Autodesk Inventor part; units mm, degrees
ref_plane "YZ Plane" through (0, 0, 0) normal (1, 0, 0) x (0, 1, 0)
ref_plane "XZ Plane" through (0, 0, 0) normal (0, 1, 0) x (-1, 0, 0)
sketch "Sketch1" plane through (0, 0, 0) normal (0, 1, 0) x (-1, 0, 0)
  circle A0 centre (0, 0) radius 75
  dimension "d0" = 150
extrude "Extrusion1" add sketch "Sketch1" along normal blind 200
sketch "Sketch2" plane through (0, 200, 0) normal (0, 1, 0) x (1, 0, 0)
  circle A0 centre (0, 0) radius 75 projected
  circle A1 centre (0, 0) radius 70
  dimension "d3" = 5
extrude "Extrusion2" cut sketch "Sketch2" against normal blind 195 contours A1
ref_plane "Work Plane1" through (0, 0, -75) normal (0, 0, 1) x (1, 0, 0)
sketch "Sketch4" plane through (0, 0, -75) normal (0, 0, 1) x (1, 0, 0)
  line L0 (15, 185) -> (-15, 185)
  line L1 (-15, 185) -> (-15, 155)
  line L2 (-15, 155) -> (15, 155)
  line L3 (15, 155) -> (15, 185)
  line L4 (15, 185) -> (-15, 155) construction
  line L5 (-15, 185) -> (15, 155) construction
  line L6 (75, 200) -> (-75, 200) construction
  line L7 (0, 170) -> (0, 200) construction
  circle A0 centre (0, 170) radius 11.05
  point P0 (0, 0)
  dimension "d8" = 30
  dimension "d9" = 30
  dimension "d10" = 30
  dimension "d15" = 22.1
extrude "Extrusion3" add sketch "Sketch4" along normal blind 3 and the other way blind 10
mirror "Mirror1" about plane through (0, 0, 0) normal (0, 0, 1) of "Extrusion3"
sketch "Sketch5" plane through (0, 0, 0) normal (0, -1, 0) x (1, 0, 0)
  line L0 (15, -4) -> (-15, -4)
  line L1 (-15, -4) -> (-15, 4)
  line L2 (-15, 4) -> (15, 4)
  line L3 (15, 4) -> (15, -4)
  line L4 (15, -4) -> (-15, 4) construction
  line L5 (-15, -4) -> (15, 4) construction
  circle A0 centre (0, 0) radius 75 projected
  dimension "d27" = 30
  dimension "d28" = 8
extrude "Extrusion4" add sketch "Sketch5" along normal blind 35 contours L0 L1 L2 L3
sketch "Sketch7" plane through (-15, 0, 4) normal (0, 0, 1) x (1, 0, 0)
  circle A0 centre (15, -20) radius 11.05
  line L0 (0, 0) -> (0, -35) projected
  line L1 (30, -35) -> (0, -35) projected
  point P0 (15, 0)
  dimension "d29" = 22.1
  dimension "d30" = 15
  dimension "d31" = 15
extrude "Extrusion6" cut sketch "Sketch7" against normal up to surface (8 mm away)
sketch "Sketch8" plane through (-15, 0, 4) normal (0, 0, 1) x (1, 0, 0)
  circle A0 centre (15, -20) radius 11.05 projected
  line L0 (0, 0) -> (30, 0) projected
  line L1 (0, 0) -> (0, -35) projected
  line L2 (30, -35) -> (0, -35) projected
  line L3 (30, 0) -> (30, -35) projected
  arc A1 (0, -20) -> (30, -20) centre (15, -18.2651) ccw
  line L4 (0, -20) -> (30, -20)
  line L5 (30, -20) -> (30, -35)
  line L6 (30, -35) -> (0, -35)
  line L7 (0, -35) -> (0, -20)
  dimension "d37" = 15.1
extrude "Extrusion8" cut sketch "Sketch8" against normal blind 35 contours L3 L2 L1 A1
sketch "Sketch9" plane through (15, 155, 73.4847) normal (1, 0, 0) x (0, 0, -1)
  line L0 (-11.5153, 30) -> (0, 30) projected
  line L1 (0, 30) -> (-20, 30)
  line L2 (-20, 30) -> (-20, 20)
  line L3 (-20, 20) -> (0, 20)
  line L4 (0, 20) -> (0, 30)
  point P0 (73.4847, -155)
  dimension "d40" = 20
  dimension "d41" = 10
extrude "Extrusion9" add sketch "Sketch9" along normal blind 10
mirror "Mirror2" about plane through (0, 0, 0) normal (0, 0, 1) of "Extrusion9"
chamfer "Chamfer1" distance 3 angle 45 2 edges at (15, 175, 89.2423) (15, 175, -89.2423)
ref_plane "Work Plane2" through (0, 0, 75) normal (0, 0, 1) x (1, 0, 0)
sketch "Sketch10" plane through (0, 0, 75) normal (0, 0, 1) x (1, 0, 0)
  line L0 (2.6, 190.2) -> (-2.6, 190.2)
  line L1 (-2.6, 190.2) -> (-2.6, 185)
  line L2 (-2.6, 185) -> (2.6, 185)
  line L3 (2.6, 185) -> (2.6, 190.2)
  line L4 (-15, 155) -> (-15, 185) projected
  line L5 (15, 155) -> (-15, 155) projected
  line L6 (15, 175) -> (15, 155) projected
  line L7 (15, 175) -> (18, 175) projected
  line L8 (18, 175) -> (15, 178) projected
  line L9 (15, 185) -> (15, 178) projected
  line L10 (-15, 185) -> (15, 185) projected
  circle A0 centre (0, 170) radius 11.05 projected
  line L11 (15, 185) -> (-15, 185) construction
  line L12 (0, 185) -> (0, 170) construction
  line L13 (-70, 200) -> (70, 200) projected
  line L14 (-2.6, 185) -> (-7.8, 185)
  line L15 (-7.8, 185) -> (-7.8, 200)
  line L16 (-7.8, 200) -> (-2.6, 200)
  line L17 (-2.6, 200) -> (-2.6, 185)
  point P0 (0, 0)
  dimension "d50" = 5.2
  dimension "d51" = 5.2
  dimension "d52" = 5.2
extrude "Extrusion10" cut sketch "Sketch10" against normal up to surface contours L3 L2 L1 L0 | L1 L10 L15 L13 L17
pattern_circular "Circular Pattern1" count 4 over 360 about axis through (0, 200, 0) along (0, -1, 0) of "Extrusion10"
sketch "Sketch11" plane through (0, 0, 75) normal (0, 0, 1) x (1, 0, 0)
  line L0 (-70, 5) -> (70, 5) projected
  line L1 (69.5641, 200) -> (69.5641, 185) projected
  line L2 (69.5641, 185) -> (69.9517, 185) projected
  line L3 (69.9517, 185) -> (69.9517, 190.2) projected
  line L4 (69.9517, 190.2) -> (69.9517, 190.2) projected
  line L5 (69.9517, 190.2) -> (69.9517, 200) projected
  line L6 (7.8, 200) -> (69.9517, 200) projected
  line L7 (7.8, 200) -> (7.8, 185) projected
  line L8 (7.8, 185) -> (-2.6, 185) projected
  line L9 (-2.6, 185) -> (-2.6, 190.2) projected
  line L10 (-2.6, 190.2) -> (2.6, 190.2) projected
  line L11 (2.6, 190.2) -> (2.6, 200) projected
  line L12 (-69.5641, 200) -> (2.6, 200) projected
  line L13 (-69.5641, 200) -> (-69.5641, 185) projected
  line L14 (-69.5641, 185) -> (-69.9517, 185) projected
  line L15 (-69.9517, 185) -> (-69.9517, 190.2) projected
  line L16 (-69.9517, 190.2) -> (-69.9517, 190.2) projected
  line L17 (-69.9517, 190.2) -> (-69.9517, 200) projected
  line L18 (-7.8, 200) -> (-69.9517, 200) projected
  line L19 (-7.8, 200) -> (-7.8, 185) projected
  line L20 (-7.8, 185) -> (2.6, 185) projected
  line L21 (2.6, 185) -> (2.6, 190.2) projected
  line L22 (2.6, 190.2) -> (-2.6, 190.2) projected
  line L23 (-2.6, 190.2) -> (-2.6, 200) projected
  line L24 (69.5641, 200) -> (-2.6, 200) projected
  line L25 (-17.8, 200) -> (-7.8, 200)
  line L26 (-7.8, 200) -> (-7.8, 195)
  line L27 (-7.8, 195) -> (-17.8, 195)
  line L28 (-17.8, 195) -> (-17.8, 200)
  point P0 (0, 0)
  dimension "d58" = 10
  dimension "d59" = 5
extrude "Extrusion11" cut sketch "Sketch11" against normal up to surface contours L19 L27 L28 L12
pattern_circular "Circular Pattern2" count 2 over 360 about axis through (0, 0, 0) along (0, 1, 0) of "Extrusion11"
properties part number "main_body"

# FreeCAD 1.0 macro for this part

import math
import FreeCAD as App
import Part
import Sketcher
Q = App.Units.Quantity


def edges_at(feature, points):
    """Names of the edges that pass closest to the given points."""
    edges = feature.Shape.Edges
    near = lambda p: min(range(len(edges)), key=lambda i: edges[i].distToShape(Part.Vertex(*p))[0])
    return sorted({f"Edge{near(p) + 1}" for p in points})


def add_polygon(sketch, points):
    """Adds a closed chain of lines whose ends are joined by coincident constraints."""
    first, n = sketch.GeometryCount, len(points)
    for a, b in zip(points, points[1:] + points[:1]):
        sketch.addGeometry(Part.LineSegment(App.Vector(*a, 0), App.Vector(*b, 0)), False)
    for i in range(n):
        sketch.addConstraint(Sketcher.Constraint("Coincident", first + i, 2, first + (i + 1) % n, 1))

doc = App.newDocument("Part")
body = doc.addObject("PartDesign::Body", "Body")

# Sketch on XZ plane
sketch1 = body.newObject("Sketcher::SketchObject", "Sketch")
sketch1.AttachmentSupport = (doc.getObject("XZ_Plane"), [""])
sketch1.MapMode = "FlatFace"
sketch1.addGeometry(Part.Circle(App.Vector(0, 0, 0), App.Vector(0, 0, 1), 75), False)
sketch1.addConstraint([
    Sketcher.Constraint("Coincident", 0, 3, -1, 1),
    Sketcher.Constraint("Diameter", 0, Q("150 mm")),
])
pad1 = body.newObject("PartDesign::Pad", "Pad")
pad1.Profile = sketch1
pad1.Length = 200
pad1.Reversed = True

# Sketch on XZ plane
sketch2 = body.newObject("Sketcher::SketchObject", "Sketch001")
sketch2.AttachmentSupport = (doc.getObject("XZ_Plane"), [""])
sketch2.MapMode = "FlatFace"
sketch2.AttachmentOffset = App.Placement(App.Vector(0, 0, -200), App.Rotation())
sketch2.addGeometry(Part.Circle(App.Vector(0, 0, 0), App.Vector(0, 0, 1), 70), False)
sketch2.addConstraint([
    Sketcher.Constraint("Coincident", 0, 3, -1, 1),
    Sketcher.Constraint("Diameter", 0, Q("140 mm")),
])
pocket1 = body.newObject("PartDesign::Pocket", "Pocket")
pocket1.Profile = sketch2
pocket1.Length = 195
pocket1.Reversed = True

# Sketch on XY plane
sketch3 = body.newObject("Sketcher::SketchObject", "Sketch002")
sketch3.AttachmentSupport = (doc.getObject("XY_Plane"), [""])
sketch3.MapMode = "FlatFace"
sketch3.AttachmentOffset = App.Placement(App.Vector(0, 0, -75), App.Rotation())
add_polygon(sketch3, [(15, 155), (15, 185), (-15, 185), (-15, 155)])  # lines 0-3
sketch3.addGeometry(Part.Circle(App.Vector(0, 170, 0), App.Vector(0, 0, 1), 11), False)  # 4
sketch3.addConstraint([
    Sketcher.Constraint("Vertical", 0),
    Sketcher.Constraint("Horizontal", 1),
    Sketcher.Constraint("Vertical", 2),
    Sketcher.Constraint("Horizontal", 3),
    Sketcher.Constraint("PointOnObject", 4, 3, -2),
    Sketcher.Constraint("Equal", 3, 0),
    Sketcher.Constraint("Diameter", 4, Q("22.1 mm")),
    Sketcher.Constraint("DistanceX", 1, 2, 1, 1, Q("30 mm")),
    Sketcher.Constraint("DistanceY", -1, 1, 4, 3, Q("170 mm")),
    Sketcher.Constraint("DistanceX", -1, 1, 0, 2, Q("15 mm")),
    Sketcher.Constraint("DistanceY", -1, 1, 0, 2, Q("185 mm")),
])
pad2 = body.newObject("PartDesign::Pad", "Pad001")
pad2.Profile = sketch3
pad2.Type = "TwoLengths"
pad2.Length = 3
pad2.Length2 = 10
doc.recompute()

mirrored = body.newObject("PartDesign::Mirrored", "Mirrored")
mirrored.Originals = [pad2]
mirrored.MirrorPlane = (doc.getObject("XY_Plane"), [""])
body.Tip = mirrored

# Sketch on XZ plane
sketch4 = body.newObject("Sketcher::SketchObject", "Sketch003")
sketch4.AttachmentSupport = (doc.getObject("XZ_Plane"), [""])
sketch4.MapMode = "FlatFace"
add_polygon(sketch4, [(-15, -4), (15, -4), (15, 4), (-15, 4)])  # lines 0-3
sketch4.addConstraint([
    Sketcher.Constraint("Horizontal", 0),
    Sketcher.Constraint("Vertical", 1),
    Sketcher.Constraint("Horizontal", 2),
    Sketcher.Constraint("Vertical", 3),
    Sketcher.Constraint("Symmetric", 0, 2, 2, 2, -1, 1),
    Sketcher.Constraint("DistanceX", 0, 1, 0, 2, Q("30 mm")),
    Sketcher.Constraint("DistanceY", 1, 1, 1, 2, Q("8 mm")),
])
pad3 = body.newObject("PartDesign::Pad", "Pad002")
pad3.Profile = sketch4
pad3.Length = 35

# Sketch on XY plane
sketch5 = body.newObject("Sketcher::SketchObject", "Sketch004")
sketch5.AttachmentSupport = (doc.getObject("XY_Plane"), [""])
sketch5.MapMode = "FlatFace"
sketch5.AttachmentOffset = App.Placement(App.Vector(0, 0, 4), App.Rotation())
sketch5.addGeometry(Part.Circle(App.Vector(0, -20, 0), App.Vector(0, 0, 1), 11), False)
sketch5.addConstraint([
    Sketcher.Constraint("PointOnObject", 0, 3, -2),
    Sketcher.Constraint("Diameter", 0, Q("22.1 mm")),
    Sketcher.Constraint("DistanceY", 0, 3, -1, 1, Q("20 mm")),
])
pocket2 = body.newObject("PartDesign::Pocket", "Pocket001")
pocket2.Profile = sketch5
pocket2.Length = 8

# Sketch on XY plane
sketch6 = body.newObject("Sketcher::SketchObject", "Sketch005")
sketch6.AttachmentSupport = (doc.getObject("XY_Plane"), [""])
sketch6.MapMode = "FlatFace"
sketch6.AttachmentOffset = App.Placement(App.Vector(0, 0, 4), App.Rotation())
sketch6.addGeometry([
    Part.LineSegment(App.Vector(15, -35, 0), App.Vector(15, -20, 0)),
    Part.ArcOfCircle(Part.Circle(App.Vector(0, -18, 0), App.Vector(0, 0, 1), 15), math.radians(-173), math.radians(-7)),
    Part.LineSegment(App.Vector(-15, -20, 0), App.Vector(-15, -35, 0)),
    Part.LineSegment(App.Vector(-15, -35, 0), App.Vector(15, -35, 0)),
], False)
sketch6.addConstraint([
    Sketcher.Constraint("Coincident", 0, 2, 1, 2),
    Sketcher.Constraint("Coincident", 1, 1, 2, 1),
    Sketcher.Constraint("Coincident", 2, 2, 3, 1),
    Sketcher.Constraint("Coincident", 3, 2, 0, 1),
    Sketcher.Constraint("Vertical", 0),
    Sketcher.Constraint("Vertical", 2),
    Sketcher.Constraint("Horizontal", 3),
    Sketcher.Constraint("Symmetric", 0, 2, 1, 1, -2),
    Sketcher.Constraint("Radius", 1, Q("15.1 mm")),
    Sketcher.Constraint("DistanceX", 3, 1, 3, 2, Q("30 mm")),
    Sketcher.Constraint("DistanceY", 0, 1, 0, 2, Q("15 mm")),
    Sketcher.Constraint("DistanceY", 0, 2, -1, 1, Q("20 mm")),
])
pocket3 = body.newObject("PartDesign::Pocket", "Pocket002")
pocket3.Profile = sketch6
pocket3.Length = 35

# Sketch on YZ plane
sketch7 = body.newObject("Sketcher::SketchObject", "Sketch006")
sketch7.AttachmentSupport = (doc.getObject("YZ_Plane"), [""])
sketch7.MapMode = "FlatFace"
sketch7.AttachmentOffset = App.Placement(App.Vector(0, 0, 15), App.Rotation())
add_polygon(sketch7, [(185, 73), (185, 93), (175, 93), (175, 73)])  # lines 0-3
sketch7.addConstraint([
    Sketcher.Constraint("Vertical", 0),
    Sketcher.Constraint("Horizontal", 1),
    Sketcher.Constraint("Vertical", 2),
    Sketcher.Constraint("Horizontal", 3),
    Sketcher.Constraint("DistanceX", 1, 2, 1, 1, Q("10 mm")),
    Sketcher.Constraint("DistanceY", 0, 1, 0, 2, Q("20 mm")),
    Sketcher.Constraint("DistanceX", -1, 1, 0, 2, Q("185 mm")),
    Sketcher.Constraint("DistanceY", -1, 1, 0, 2, Q("93.4847 mm")),
])
pad4 = body.newObject("PartDesign::Pad", "Pad003")
pad4.Profile = sketch7
pad4.Length = 10
doc.recompute()

mirrored2 = body.newObject("PartDesign::Mirrored", "Mirrored001")
mirrored2.Originals = [pad4]
mirrored2.MirrorPlane = (doc.getObject("XY_Plane"), [""])
body.Tip = mirrored2
doc.recompute()

chamfer = body.newObject("PartDesign::Chamfer", "Chamfer")
chamfer.Base = (mirrored2, edges_at(mirrored2, [(15, 175, 89.242), (15, 175, -89.242)]))
chamfer.Size = 3

# Sketch on XY plane
sketch8 = body.newObject("Sketcher::SketchObject", "Sketch007")
sketch8.AttachmentSupport = (doc.getObject("XY_Plane"), [""])
sketch8.MapMode = "FlatFace"
sketch8.AttachmentOffset = App.Placement(App.Vector(0, 0, 75), App.Rotation())
add_polygon(sketch8, [(3, 185), (3, 190), (-3, 190), (-3, 200), (-8, 200), (-8, 185)])  # lines 0-5
sketch8.addConstraint([
    Sketcher.Constraint("Vertical", 0),
    Sketcher.Constraint("Horizontal", 1),
    Sketcher.Constraint("Vertical", 2),
    Sketcher.Constraint("Horizontal", 3),
    Sketcher.Constraint("Vertical", 4),
    Sketcher.Constraint("Horizontal", 5),
    Sketcher.Constraint("Equal", 1, 3),
    Sketcher.Constraint("Equal", 3, 0),
    Sketcher.Constraint("DistanceX", 1, 2, 1, 1, Q("5.2 mm")),
    Sketcher.Constraint("DistanceY", 4, 2, 4, 1, Q("15 mm")),
    Sketcher.Constraint("DistanceY", -1, 1, 2, 2, Q("200 mm")),
    Sketcher.Constraint("DistanceX", -1, 1, 0, 2, Q("2.6 mm")),
])
pocket4 = body.newObject("PartDesign::Pocket", "Pocket003")
pocket4.Profile = sketch8
pocket4.Length = 5.4359
doc.recompute()

polarpattern = body.newObject("PartDesign::PolarPattern", "PolarPattern")
polarpattern.Originals = [pocket4]
polarpattern.Axis = (doc.getObject("Y_Axis"), [""])
polarpattern.Angle = 360
polarpattern.Occurrences = 4
body.Tip = polarpattern

# Sketch on XY plane
sketch9 = body.newObject("Sketcher::SketchObject", "Sketch008")
sketch9.AttachmentSupport = (doc.getObject("XY_Plane"), [""])
sketch9.MapMode = "FlatFace"
sketch9.AttachmentOffset = App.Placement(App.Vector(0, 0, 75), App.Rotation())
add_polygon(sketch9, [(-8, 195), (-8, 200), (-18, 200), (-18, 195)])  # lines 0-3
sketch9.addConstraint([
    Sketcher.Constraint("Vertical", 0),
    Sketcher.Constraint("Horizontal", 1),
    Sketcher.Constraint("Vertical", 2),
    Sketcher.Constraint("Horizontal", 3),
    Sketcher.Constraint("DistanceX", 1, 2, 1, 1, Q("10 mm")),
    Sketcher.Constraint("DistanceY", 0, 1, 0, 2, Q("5 mm")),
    Sketcher.Constraint("DistanceY", -1, 1, 0, 2, Q("200 mm")),
    Sketcher.Constraint("DistanceX", 0, 2, -1, 1, Q("7.8 mm")),
])
pocket5 = body.newObject("PartDesign::Pocket", "Pocket004")
pocket5.Profile = sketch9
pocket5.Length = 7.301
doc.recompute()

polarpattern2 = body.newObject("PartDesign::PolarPattern", "PolarPattern001")
polarpattern2.Originals = [pocket5]
polarpattern2.Axis = (doc.getObject("Y_Axis"), [""])
polarpattern2.Angle = 360
polarpattern2.Occurrences = 2
body.Tip = polarpattern2

doc.recompute()
